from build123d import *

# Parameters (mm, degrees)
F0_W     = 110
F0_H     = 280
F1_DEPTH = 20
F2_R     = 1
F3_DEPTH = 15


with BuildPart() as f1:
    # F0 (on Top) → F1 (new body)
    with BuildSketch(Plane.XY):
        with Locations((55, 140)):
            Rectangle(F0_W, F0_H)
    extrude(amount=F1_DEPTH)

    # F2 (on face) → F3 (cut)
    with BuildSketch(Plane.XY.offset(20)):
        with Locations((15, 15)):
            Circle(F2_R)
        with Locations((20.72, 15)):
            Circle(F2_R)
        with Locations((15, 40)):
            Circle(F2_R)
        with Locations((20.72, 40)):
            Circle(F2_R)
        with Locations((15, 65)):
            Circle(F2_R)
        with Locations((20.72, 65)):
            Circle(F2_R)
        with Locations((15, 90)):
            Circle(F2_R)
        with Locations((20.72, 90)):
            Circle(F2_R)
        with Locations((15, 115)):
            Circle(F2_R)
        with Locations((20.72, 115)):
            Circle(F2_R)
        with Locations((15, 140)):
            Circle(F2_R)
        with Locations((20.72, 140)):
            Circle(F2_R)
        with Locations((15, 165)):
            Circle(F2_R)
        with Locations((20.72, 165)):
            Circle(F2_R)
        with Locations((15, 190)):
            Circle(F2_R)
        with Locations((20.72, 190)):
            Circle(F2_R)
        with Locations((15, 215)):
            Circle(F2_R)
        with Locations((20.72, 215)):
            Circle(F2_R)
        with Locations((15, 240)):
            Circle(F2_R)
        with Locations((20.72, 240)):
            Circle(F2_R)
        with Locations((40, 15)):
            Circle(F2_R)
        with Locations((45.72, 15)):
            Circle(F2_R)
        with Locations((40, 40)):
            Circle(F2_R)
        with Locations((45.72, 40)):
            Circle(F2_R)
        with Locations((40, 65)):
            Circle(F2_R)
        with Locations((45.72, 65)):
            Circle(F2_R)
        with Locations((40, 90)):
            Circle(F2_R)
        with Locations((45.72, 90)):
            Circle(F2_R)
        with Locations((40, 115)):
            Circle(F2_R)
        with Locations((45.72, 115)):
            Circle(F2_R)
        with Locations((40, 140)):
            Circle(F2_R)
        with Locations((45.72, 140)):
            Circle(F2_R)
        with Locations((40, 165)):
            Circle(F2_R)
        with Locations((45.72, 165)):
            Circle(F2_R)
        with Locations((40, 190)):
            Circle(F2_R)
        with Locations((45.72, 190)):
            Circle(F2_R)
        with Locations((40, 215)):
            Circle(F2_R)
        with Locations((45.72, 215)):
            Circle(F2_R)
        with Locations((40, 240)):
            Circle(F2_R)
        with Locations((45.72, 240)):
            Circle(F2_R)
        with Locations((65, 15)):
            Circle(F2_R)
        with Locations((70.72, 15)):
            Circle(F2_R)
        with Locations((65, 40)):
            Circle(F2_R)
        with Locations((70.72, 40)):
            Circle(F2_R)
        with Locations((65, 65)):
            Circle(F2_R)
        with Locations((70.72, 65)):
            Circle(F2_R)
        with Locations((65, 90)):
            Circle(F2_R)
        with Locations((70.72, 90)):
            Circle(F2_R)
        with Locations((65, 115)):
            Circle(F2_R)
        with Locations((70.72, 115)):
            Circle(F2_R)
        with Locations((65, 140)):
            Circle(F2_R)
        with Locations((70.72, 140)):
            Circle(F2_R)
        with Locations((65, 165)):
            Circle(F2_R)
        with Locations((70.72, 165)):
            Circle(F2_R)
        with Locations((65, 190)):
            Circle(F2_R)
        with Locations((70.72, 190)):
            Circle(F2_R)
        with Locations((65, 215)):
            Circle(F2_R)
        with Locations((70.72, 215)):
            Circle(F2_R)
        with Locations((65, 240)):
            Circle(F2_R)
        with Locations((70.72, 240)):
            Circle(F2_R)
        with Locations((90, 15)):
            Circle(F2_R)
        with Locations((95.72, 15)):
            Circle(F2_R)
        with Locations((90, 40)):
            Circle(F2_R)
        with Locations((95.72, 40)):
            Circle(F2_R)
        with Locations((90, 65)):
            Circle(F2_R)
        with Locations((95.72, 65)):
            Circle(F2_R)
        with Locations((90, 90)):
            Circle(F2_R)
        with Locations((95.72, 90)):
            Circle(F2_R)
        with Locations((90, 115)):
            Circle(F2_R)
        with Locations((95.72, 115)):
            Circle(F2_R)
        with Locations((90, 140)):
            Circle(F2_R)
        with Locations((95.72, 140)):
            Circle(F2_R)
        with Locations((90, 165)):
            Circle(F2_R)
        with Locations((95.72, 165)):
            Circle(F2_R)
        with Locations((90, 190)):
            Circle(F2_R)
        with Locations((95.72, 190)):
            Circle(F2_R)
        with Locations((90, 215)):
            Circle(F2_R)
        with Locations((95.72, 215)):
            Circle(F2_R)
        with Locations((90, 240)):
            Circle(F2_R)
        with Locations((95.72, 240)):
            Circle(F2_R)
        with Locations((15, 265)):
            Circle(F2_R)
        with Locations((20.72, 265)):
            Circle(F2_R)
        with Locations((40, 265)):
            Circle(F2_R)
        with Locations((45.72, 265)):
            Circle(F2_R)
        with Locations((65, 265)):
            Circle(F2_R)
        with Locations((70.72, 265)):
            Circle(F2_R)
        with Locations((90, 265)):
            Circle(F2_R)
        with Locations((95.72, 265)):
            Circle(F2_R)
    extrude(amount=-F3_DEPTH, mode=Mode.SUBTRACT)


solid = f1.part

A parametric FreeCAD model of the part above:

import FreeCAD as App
import Part
import Sketcher

doc = App.newDocument("Part")
params = doc.addObject("Spreadsheet::Sheet", "Params")
for row, (alias, value) in enumerate([
    ("sketch1_width", "110 mm"),
    ("sketch1_height", "280 mm"),
    ("pad1_length", "20 mm"),
    ("sketch2_diameter", "2 mm"),
    ("pocket1_length", "15 mm"),
], start=1):
    params.set(f"A{row}", alias)
    params.set(f"B{row}", "=" + value)
    params.setAlias(f"B{row}", alias)

body = doc.addObject("PartDesign::Body", "Body")

# Sketch on XY plane
sketch1 = body.newObject("Sketcher::SketchObject", "Sketch")
sketch1.AttachmentSupport = (doc.getObject("XY_Plane"), [""])
sketch1.MapMode = "FlatFace"
sketch1.addGeometry(Part.LineSegment(App.Vector(0, 280, 0), App.Vector(0, 0, 0)), False)
sketch1.addGeometry(Part.LineSegment(App.Vector(0, 0, 0), App.Vector(110, 0, 0)), False)
sketch1.addGeometry(Part.LineSegment(App.Vector(110, 0, 0), App.Vector(110, 280, 0)), False)
sketch1.addGeometry(Part.LineSegment(App.Vector(110, 280, 0), App.Vector(0, 280, 0)), False)
sketch1.addConstraint(Sketcher.Constraint("Coincident", 0, 2, 1, 1))
sketch1.addConstraint(Sketcher.Constraint("Coincident", 1, 2, 2, 1))
sketch1.addConstraint(Sketcher.Constraint("Coincident", 2, 2, 3, 1))
sketch1.addConstraint(Sketcher.Constraint("Coincident", 3, 2, 0, 1))
sketch1.addConstraint(Sketcher.Constraint("Vertical", 0))
sketch1.addConstraint(Sketcher.Constraint("Horizontal", 1))
sketch1.addConstraint(Sketcher.Constraint("Vertical", 2))
sketch1.addConstraint(Sketcher.Constraint("Horizontal", 3))
sketch1.addConstraint(Sketcher.Constraint("Coincident", 0, 2, -1, 1))
sketch1.addConstraint(Sketcher.Constraint("DistanceX", 1, 1, 1, 2, 110.0))
sketch1.addConstraint(Sketcher.Constraint("DistanceY", 0, 2, 0, 1, 280.0))
sketch1.setExpression("Constraints[9]", "Params.sketch1_width")
sketch1.setExpression("Constraints[10]", "Params.sketch1_height")
pad1 = body.newObject("PartDesign::Pad", "Pad")
pad1.Profile = sketch1
pad1.setExpression("Length", "Params.pad1_length")

# Sketch on XY plane
sketch2 = body.newObject("Sketcher::SketchObject", "Sketch001")
sketch2.AttachmentSupport = (doc.getObject("XY_Plane"), [""])
sketch2.MapMode = "FlatFace"
sketch2.AttachmentOffset = App.Placement(App.Vector(0, 0, 20), App.Rotation())
sketch2.addGeometry(Part.Circle(App.Vector(15, 15, 0), App.Vector(0, 0, 1), 1), False)
sketch2.addGeometry(Part.Circle(App.Vector(20.7, 15, 0), App.Vector(0, 0, 1), 1), False)
sketch2.addGeometry(Part.Circle(App.Vector(15, 40, 0), App.Vector(0, 0, 1), 1), False)
sketch2.addGeometry(Part.Circle(App.Vector(20.7, 40, 0), App.Vector(0, 0, 1), 1), False)
sketch2.addGeometry(Part.Circle(App.Vector(15, 65, 0), App.Vector(0, 0, 1), 1), False)
sketch2.addGeometry(Part.Circle(App.Vector(20.7, 65, 0), App.Vector(0, 0, 1), 1), False)
sketch2.addGeometry(Part.Circle(App.Vector(15, 90, 0), App.Vector(0, 0, 1), 1), False)
sketch2.addGeometry(Part.Circle(App.Vector(20.7, 90, 0), App.Vector(0, 0, 1), 1), False)
sketch2.addGeometry(Part.Circle(App.Vector(15, 115, 0), App.Vector(0, 0, 1), 1), False)
sketch2.addGeometry(Part.Circle(App.Vector(20.7, 115, 0), App.Vector(0, 0, 1), 1), False)
sketch2.addGeometry(Part.Circle(App.Vector(15, 140, 0), App.Vector(0, 0, 1), 1), False)
sketch2.addGeometry(Part.Circle(App.Vector(20.7, 140, 0), App.Vector(0, 0, 1), 1), False)
sketch2.addGeometry(Part.Circle(App.Vector(15, 165, 0), App.Vector(0, 0, 1), 1), False)
sketch2.addGeometry(Part.Circle(App.Vector(20.7, 165, 0), App.Vector(0, 0, 1), 1), False)
sketch2.addGeometry(Part.Circle(App.Vector(15, 190, 0), App.Vector(0, 0, 1), 1), False)
sketch2.addGeometry(Part.Circle(App.Vector(20.7, 190, 0), App.Vector(0, 0, 1), 1), False)
sketch2.addGeometry(Part.Circle(App.Vector(15, 215, 0), App.Vector(0, 0, 1), 1), False)
sketch2.addGeometry(Part.Circle(App.Vector(20.7, 215, 0), App.Vector(0, 0, 1), 1), False)
sketch2.addGeometry(Part.Circle(App.Vector(15, 240, 0), App.Vector(0, 0, 1), 1), False)
sketch2.addGeometry(Part.Circle(App.Vector(20.7, 240, 0), App.Vector(0, 0, 1), 1), False)
sketch2.addGeometry(Part.Circle(App.Vector(40, 15, 0), App.Vector(0, 0, 1), 1), False)
sketch2.addGeometry(Part.Circle(App.Vector(45.7, 15, 0), App.Vector(0, 0, 1), 1), False)
sketch2.addGeometry(Part.Circle(App.Vector(40, 40, 0), App.Vector(0, 0, 1), 1), False)
sketch2.addGeometry(Part.Circle(App.Vector(45.7, 40, 0), App.Vector(0, 0, 1), 1), False)
sketch2.addGeometry(Part.Circle(App.Vector(40, 65, 0), App.Vector(0, 0, 1), 1), False)
sketch2.addGeometry(Part.Circle(App.Vector(45.7, 65, 0), App.Vector(0, 0, 1), 1), False)
sketch2.addGeometry(Part.Circle(App.Vector(40, 90, 0), App.Vector(0, 0, 1), 1), False)
sketch2.addGeometry(Part.Circle(App.Vector(45.7, 90, 0), App.Vector(0, 0, 1), 1), False)
sketch2.addGeometry(Part.Circle(App.Vector(40, 115, 0), App.Vector(0, 0, 1), 1), False)
sketch2.addGeometry(Part.Circle(App.Vector(45.7, 115, 0), App.Vector(0, 0, 1), 1), False)
sketch2.addGeometry(Part.Circle(App.Vector(40, 140, 0), App.Vector(0, 0, 1), 1), False)
sketch2.addGeometry(Part.Circle(App.Vector(45.7, 140, 0), App.Vector(0, 0, 1), 1), False)
sketch2.addGeometry(Part.Circle(App.Vector(40, 165, 0), App.Vector(0, 0, 1), 1), False)
sketch2.addGeometry(Part.Circle(App.Vector(45.7, 165, 0), App.Vector(0, 0, 1), 1), False)
sketch2.addGeometry(Part.Circle(App.Vector(40, 190, 0), App.Vector(0, 0, 1), 1), False)
sketch2.addGeometry(Part.Circle(App.Vector(45.7, 190, 0), App.Vector(0, 0, 1), 1), False)
sketch2.addGeometry(Part.Circle(App.Vector(40, 215, 0), App.Vector(0, 0, 1), 1), False)
sketch2.addGeometry(Part.Circle(App.Vector(45.7, 215, 0), App.Vector(0, 0, 1), 1), False)
sketch2.addGeometry(Part.Circle(App.Vector(40, 240, 0), App.Vector(0, 0, 1), 1), False)
sketch2.addGeometry(Part.Circle(App.Vector(45.7, 240, 0), App.Vector(0, 0, 1), 1), False)
sketch2.addGeometry(Part.Circle(App.Vector(65, 15, 0), App.Vector(0, 0, 1), 1), False)
sketch2.addGeometry(Part.Circle(App.Vector(70.7, 15, 0), App.Vector(0, 0, 1), 1), False)
sketch2.addGeometry(Part.Circle(App.Vector(65, 40, 0), App.Vector(0, 0, 1), 1), False)
sketch2.addGeometry(Part.Circle(App.Vector(70.7, 40, 0), App.Vector(0, 0, 1), 1), False)
sketch2.addGeometry(Part.Circle(App.Vector(65, 65, 0), App.Vector(0, 0, 1), 1), False)
sketch2.addGeometry(Part.Circle(App.Vector(70.7, 65, 0), App.Vector(0, 0, 1), 1), False)
sketch2.addGeometry(Part.Circle(App.Vector(65, 90, 0), App.Vector(0, 0, 1), 1), False)
sketch2.addGeometry(Part.Circle(App.Vector(70.7, 90, 0), App.Vector(0, 0, 1), 1), False)
sketch2.addGeometry(Part.Circle(App.Vector(65, 115, 0), App.Vector(0, 0, 1), 1), False)
sketch2.addGeometry(Part.Circle(App.Vector(70.7, 115, 0), App.Vector(0, 0, 1), 1), False)
sketch2.addGeometry(Part.Circle(App.Vector(65, 140, 0), App.Vector(0, 0, 1), 1), False)
sketch2.addGeometry(Part.Circle(App.Vector(70.7, 140, 0), App.Vector(0, 0, 1), 1), False)
sketch2.addGeometry(Part.Circle(App.Vector(65, 165, 0), App.Vector(0, 0, 1), 1), False)
sketch2.addGeometry(Part.Circle(App.Vector(70.7, 165, 0), App.Vector(0, 0, 1), 1), False)
sketch2.addGeometry(Part.Circle(App.Vector(65, 190, 0), App.Vector(0, 0, 1), 1), False)
sketch2.addGeometry(Part.Circle(App.Vector(70.7, 190, 0), App.Vector(0, 0, 1), 1), False)
sketch2.addGeometry(Part.Circle(App.Vector(65, 215, 0), App.Vector(0, 0, 1), 1), False)
sketch2.addGeometry(Part.Circle(App.Vector(70.7, 215, 0), App.Vector(0, 0, 1), 1), False)
sketch2.addGeometry(Part.Circle(App.Vector(65, 240, 0), App.Vector(0, 0, 1), 1), False)
sketch2.addGeometry(Part.Circle(App.Vector(70.7, 240, 0), App.Vector(0, 0, 1), 1), False)
sketch2.addGeometry(Part.Circle(App.Vector(90, 15, 0), App.Vector(0, 0, 1), 1), False)
sketch2.addGeometry(Part.Circle(App.Vector(95.7, 15, 0), App.Vector(0, 0, 1), 1), False)
sketch2.addGeometry(Part.Circle(App.Vector(90, 40, 0), App.Vector(0, 0, 1), 1), False)
sketch2.addGeometry(Part.Circle(App.Vector(95.7, 40, 0), App.Vector(0, 0, 1), 1), False)
sketch2.addGeometry(Part.Circle(App.Vector(90, 65, 0), App.Vector(0, 0, 1), 1), False)
sketch2.addGeometry(Part.Circle(App.Vector(95.7, 65, 0), App.Vector(0, 0, 1), 1), False)
sketch2.addGeometry(Part.Circle(App.Vector(90, 90, 0), App.Vector(0, 0, 1), 1), False)
sketch2.addGeometry(Part.Circle(App.Vector(95.7, 90, 0), App.Vector(0, 0, 1), 1), False)
sketch2.addGeometry(Part.Circle(App.Vector(90, 115, 0), App.Vector(0, 0, 1), 1), False)
sketch2.addGeometry(Part.Circle(App.Vector(95.7, 115, 0), App.Vector(0, 0, 1), 1), False)
sketch2.addGeometry(Part.Circle(App.Vector(90, 140, 0), App.Vector(0, 0, 1), 1), False)
sketch2.addGeometry(Part.Circle(App.Vector(95.7, 140, 0), App.Vector(0, 0, 1), 1), False)
sketch2.addGeometry(Part.Circle(App.Vector(90, 165, 0), App.Vector(0, 0, 1), 1), False)
sketch2.addGeometry(Part.Circle(App.Vector(95.7, 165, 0), App.Vector(0, 0, 1), 1), False)
sketch2.addGeometry(Part.Circle(App.Vector(90, 190, 0), App.Vector(0, 0, 1), 1), False)
sketch2.addGeometry(Part.Circle(App.Vector(95.7, 190, 0), App.Vector(0, 0, 1), 1), False)
sketch2.addGeometry(Part.Circle(App.Vector(90, 215, 0), App.Vector(0, 0, 1), 1), False)
sketch2.addGeometry(Part.Circle(App.Vector(95.7, 215, 0), App.Vector(0, 0, 1), 1), False)
sketch2.addGeometry(Part.Circle(App.Vector(90, 240, 0), App.Vector(0, 0, 1), 1), False)
sketch2.addGeometry(Part.Circle(App.Vector(95.7, 240, 0), App.Vector(0, 0, 1), 1), False)
sketch2.addGeometry(Part.Circle(App.Vector(15, 265, 0), App.Vector(0, 0, 1), 1), False)
sketch2.addGeometry(Part.Circle(App.Vector(20.7, 265, 0), App.Vector(0, 0, 1), 1), False)
sketch2.addGeometry(Part.Circle(App.Vector(40, 265, 0), App.Vector(0, 0, 1), 1), False)
sketch2.addGeometry(Part.Circle(App.Vector(45.7, 265, 0), App.Vector(0, 0, 1), 1), False)
sketch2.addGeometry(Part.Circle(App.Vector(65, 265, 0), App.Vector(0, 0, 1), 1), False)
sketch2.addGeometry(Part.Circle(App.Vector(70.7, 265, 0), App.Vector(0, 0, 1), 1), False)
sketch2.addGeometry(Part.Circle(App.Vector(90, 265, 0), App.Vector(0, 0, 1), 1), False)
sketch2.addGeometry(Part.Circle(App.Vector(95.7, 265, 0), App.Vector(0, 0, 1), 1), False)
sketch2.addConstraint(Sketcher.Constraint("Equal", 0, 1))
sketch2.addConstraint(Sketcher.Constraint("Equal", 1, 2))
sketch2.addConstraint(Sketcher.Constraint("Equal", 2, 3))
sketch2.addConstraint(Sketcher.Constraint("Equal", 3, 4))
sketch2.addConstraint(Sketcher.Constraint("Equal", 4, 5))
sketch2.addConstraint(Sketcher.Constraint("Equal", 5, 6))
sketch2.addConstraint(Sketcher.Constraint("Equal", 6, 7))
sketch2.addConstraint(Sketcher.Constraint("Equal", 7, 8))
sketch2.addConstraint(Sketcher.Constraint("Equal", 8, 9))
sketch2.addConstraint(Sketcher.Constraint("Equal", 9, 10))
sketch2.addConstraint(Sketcher.Constraint("Equal", 10, 11))
sketch2.addConstraint(Sketcher.Constraint("Equal", 11, 12))
sketch2.addConstraint(Sketcher.Constraint("Equal", 12, 13))
sketch2.addConstraint(Sketcher.Constraint("Equal", 13, 14))
sketch2.addConstraint(Sketcher.Constraint("Equal", 14, 15))
sketch2.addConstraint(Sketcher.Constraint("Equal", 15, 16))
sketch2.addConstraint(Sketcher.Constraint("Equal", 16, 17))
sketch2.addConstraint(Sketcher.Constraint("Equal", 17, 18))
sketch2.addConstraint(Sketcher.Constraint("Equal", 18, 19))
sketch2.addConstraint(Sketcher.Constraint("Equal", 19, 20))
sketch2.addConstraint(Sketcher.Constraint("Equal", 20, 21))
sketch2.addConstraint(Sketcher.Constraint("Equal", 21, 22))
sketch2.addConstraint(Sketcher.Constraint("Equal", 22, 23))
sketch2.addConstraint(Sketcher.Constraint("Equal", 23, 24))
sketch2.addConstraint(Sketcher.Constraint("Equal", 24, 25))
sketch2.addConstraint(Sketcher.Constraint("Equal", 25, 26))
sketch2.addConstraint(Sketcher.Constraint("Equal", 26, 27))
sketch2.addConstraint(Sketcher.Constraint("Equal", 27, 28))
sketch2.addConstraint(Sketcher.Constraint("Equal", 28, 29))
sketch2.addConstraint(Sketcher.Constraint("Equal", 29, 30))
sketch2.addConstraint(Sketcher.Constraint("Equal", 30, 31))
sketch2.addConstraint(Sketcher.Constraint("Equal", 31, 32))
sketch2.addConstraint(Sketcher.Constraint("Equal", 32, 33))
sketch2.addConstraint(Sketcher.Constraint("Equal", 33, 34))
sketch2.addConstraint(Sketcher.Constraint("Equal", 34, 35))
sketch2.addConstraint(Sketcher.Constraint("Equal", 35, 36))
sketch2.addConstraint(Sketcher.Constraint("Equal", 36, 37))
sketch2.addConstraint(Sketcher.Constraint("Equal", 37, 38))
sketch2.addConstraint(Sketcher.Constraint("Equal", 38, 39))
sketch2.addConstraint(Sketcher.Constraint("Equal", 39, 40))
sketch2.addConstraint(Sketcher.Constraint("Equal", 40, 41))
sketch2.addConstraint(Sketcher.Constraint("Equal", 41, 42))
sketch2.addConstraint(Sketcher.Constraint("Equal", 42, 43))
sketch2.addConstraint(Sketcher.Constraint("Equal", 43, 44))
sketch2.addConstraint(Sketcher.Constraint("Equal", 44, 45))
sketch2.addConstraint(Sketcher.Constraint("Equal", 45, 46))
sketch2.addConstraint(Sketcher.Constraint("Equal", 46, 47))
sketch2.addConstraint(Sketcher.Constraint("Equal", 47, 48))
sketch2.addConstraint(Sketcher.Constraint("Equal", 48, 49))
sketch2.addConstraint(Sketcher.Constraint("Equal", 49, 50))
sketch2.addConstraint(Sketcher.Constraint("Equal", 50, 51))
sketch2.addConstraint(Sketcher.Constraint("Equal", 51, 52))
sketch2.addConstraint(Sketcher.Constraint("Equal", 52, 53))
sketch2.addConstraint(Sketcher.Constraint("Equal", 53, 54))
sketch2.addConstraint(Sketcher.Constraint("Equal", 54, 55))
sketch2.addConstraint(Sketcher.Constraint("Equal", 55, 56))
sketch2.addConstraint(Sketcher.Constraint("Equal", 56, 57))
sketch2.addConstraint(Sketcher.Constraint("Equal", 57, 58))
sketch2.addConstraint(Sketcher.Constraint("Equal", 58, 59))
sketch2.addConstraint(Sketcher.Constraint("Equal", 59, 60))
sketch2.addConstraint(Sketcher.Constraint("Equal", 60, 61))
sketch2.addConstraint(Sketcher.Constraint("Equal", 61, 62))
sketch2.addConstraint(Sketcher.Constraint("Equal", 62, 63))
sketch2.addConstraint(Sketcher.Constraint("Equal", 63, 64))
sketch2.addConstraint(Sketcher.Constraint("Equal", 64, 65))
sketch2.addConstraint(Sketcher.Constraint("Equal", 65, 66))
sketch2.addConstraint(Sketcher.Constraint("Equal", 66, 67))
sketch2.addConstraint(Sketcher.Constraint("Equal", 67, 68))
sketch2.addConstraint(Sketcher.Constraint("Equal", 68, 69))
sketch2.addConstraint(Sketcher.Constraint("Equal", 69, 70))
sketch2.addConstraint(Sketcher.Constraint("Equal", 70, 71))
sketch2.addConstraint(Sketcher.Constraint("Equal", 71, 72))
sketch2.addConstraint(Sketcher.Constraint("Equal", 72, 73))
sketch2.addConstraint(Sketcher.Constraint("Equal", 73, 74))
sketch2.addConstraint(Sketcher.Constraint("Equal", 74, 75))
sketch2.addConstraint(Sketcher.Constraint("Equal", 75, 76))
sketch2.addConstraint(Sketcher.Constraint("Equal", 76, 77))
sketch2.addConstraint(Sketcher.Constraint("Equal", 77, 78))
sketch2.addConstraint(Sketcher.Constraint("Equal", 78, 79))
sketch2.addConstraint(Sketcher.Constraint("Equal", 79, 80))
sketch2.addConstraint(Sketcher.Constraint("Equal", 80, 81))
sketch2.addConstraint(Sketcher.Constraint("Equal", 81, 82))
sketch2.addConstraint(Sketcher.Constraint("Equal", 82, 83))
sketch2.addConstraint(Sketcher.Constraint("Equal", 83, 84))
sketch2.addConstraint(Sketcher.Constraint("Equal", 84, 85))
sketch2.addConstraint(Sketcher.Constraint("Equal", 85, 86))
sketch2.addConstraint(Sketcher.Constraint("Equal", 86, 87))
sketch2.addConstraint(Sketcher.Constraint("Horizontal", 0, 3, 1, 3))
sketch2.addConstraint(Sketcher.Constraint("Horizontal", 2, 3, 3, 3))
sketch2.addConstraint(Sketcher.Constraint("Horizontal", 4, 3, 5, 3))
sketch2.addConstraint(Sketcher.Constraint("Horizontal", 6, 3, 7, 3))
sketch2.addConstraint(Sketcher.Constraint("Horizontal", 8, 3, 9, 3))
sketch2.addConstraint(Sketcher.Constraint("Horizontal", 10, 3, 11, 3))
sketch2.addConstraint(Sketcher.Constraint("Horizontal", 12, 3, 13, 3))
sketch2.addConstraint(Sketcher.Constraint("Horizontal", 14, 3, 15, 3))
sketch2.addConstraint(Sketcher.Constraint("Horizontal", 16, 3, 17, 3))
sketch2.addConstraint(Sketcher.Constraint("Horizontal", 18, 3, 19, 3))
sketch2.addConstraint(Sketcher.Constraint("Horizontal", 1, 3, 20, 3))
sketch2.addConstraint(Sketcher.Constraint("Horizontal", 20, 3, 21, 3))
sketch2.addConstraint(Sketcher.Constraint("Horizontal", 3, 3, 22, 3))
sketch2.addConstraint(Sketcher.Constraint("Horizontal", 22, 3, 23, 3))
sketch2.addConstraint(Sketcher.Constraint("Horizontal", 5, 3, 24, 3))
sketch2.addConstraint(Sketcher.Constraint("Horizontal", 24, 3, 25, 3))
sketch2.addConstraint(Sketcher.Constraint("Horizontal", 7, 3, 26, 3))
sketch2.addConstraint(Sketcher.Constraint("Horizontal", 26, 3, 27, 3))
sketch2.addConstraint(Sketcher.Constraint("Horizontal", 9, 3, 28, 3))
sketch2.addConstraint(Sketcher.Constraint("Horizontal", 28, 3, 29, 3))
sketch2.addConstraint(Sketcher.Constraint("Horizontal", 11, 3, 30, 3))
sketch2.addConstraint(Sketcher.Constraint("Horizontal", 30, 3, 31, 3))
sketch2.addConstraint(Sketcher.Constraint("Horizontal", 13, 3, 32, 3))
sketch2.addConstraint(Sketcher.Constraint("Horizontal", 32, 3, 33, 3))
sketch2.addConstraint(Sketcher.Constraint("Horizontal", 15, 3, 34, 3))
sketch2.addConstraint(Sketcher.Constraint("Horizontal", 34, 3, 35, 3))
sketch2.addConstraint(Sketcher.Constraint("Horizontal", 17, 3, 36, 3))
sketch2.addConstraint(Sketcher.Constraint("Horizontal", 36, 3, 37, 3))
sketch2.addConstraint(Sketcher.Constraint("Horizontal", 19, 3, 38, 3))
sketch2.addConstraint(Sketcher.Constraint("Horizontal", 38, 3, 39, 3))
sketch2.addConstraint(Sketcher.Constraint("Horizontal", 21, 3, 40, 3))
sketch2.addConstraint(Sketcher.Constraint("Horizontal", 40, 3, 41, 3))
sketch2.addConstraint(Sketcher.Constraint("Horizontal", 23, 3, 42, 3))
sketch2.addConstraint(Sketcher.Constraint("Horizontal", 42, 3, 43, 3))
sketch2.addConstraint(Sketcher.Constraint("Horizontal", 25, 3, 44, 3))
sketch2.addConstraint(Sketcher.Constraint("Horizontal", 44, 3, 45, 3))
sketch2.addConstraint(Sketcher.Constraint("Horizontal", 27, 3, 46, 3))
sketch2.addConstraint(Sketcher.Constraint("Horizontal", 46, 3, 47, 3))
sketch2.addConstraint(Sketcher.Constraint("Horizontal", 29, 3, 48, 3))
sketch2.addConstraint(Sketcher.Constraint("Horizontal", 48, 3, 49, 3))
sketch2.addConstraint(Sketcher.Constraint("Horizontal", 31, 3, 50, 3))
sketch2.addConstraint(Sketcher.Constraint("Horizontal", 50, 3, 51, 3))
sketch2.addConstraint(Sketcher.Constraint("Horizontal", 33, 3, 52, 3))
sketch2.addConstraint(Sketcher.Constraint("Horizontal", 52, 3, 53, 3))
sketch2.addConstraint(Sketcher.Constraint("Horizontal", 35, 3, 54, 3))
sketch2.addConstraint(Sketcher.Constraint("Horizontal", 54, 3, 55, 3))
sketch2.addConstraint(Sketcher.Constraint("Horizontal", 37, 3, 56, 3))
sketch2.addConstraint(Sketcher.Constraint("Horizontal", 56, 3, 57, 3))
sketch2.addConstraint(Sketcher.Constraint("Horizontal", 39, 3, 58, 3))
sketch2.addConstraint(Sketcher.Constraint("Horizontal", 58, 3, 59, 3))
sketch2.addConstraint(Sketcher.Constraint("Horizontal", 41, 3, 60, 3))
sketch2.addConstraint(Sketcher.Constraint("Horizontal", 60, 3, 61, 3))
sketch2.addConstraint(Sketcher.Constraint("Horizontal", 43, 3, 62, 3))
sketch2.addConstraint(Sketcher.Constraint("Horizontal", 62, 3, 63, 3))
sketch2.addConstraint(Sketcher.Constraint("Horizontal", 45, 3, 64, 3))
sketch2.addConstraint(Sketcher.Constraint("Horizontal", 64, 3, 65, 3))
sketch2.addConstraint(Sketcher.Constraint("Horizontal", 47, 3, 66, 3))
sketch2.addConstraint(Sketcher.Constraint("Horizontal", 66, 3, 67, 3))
sketch2.addConstraint(Sketcher.Constraint("Horizontal", 49, 3, 68, 3))
sketch2.addConstraint(Sketcher.Constraint("Horizontal", 68, 3, 69, 3))
sketch2.addConstraint(Sketcher.Constraint("Horizontal", 51, 3, 70, 3))
sketch2.addConstraint(Sketcher.Constraint("Horizontal", 70, 3, 71, 3))
sketch2.addConstraint(Sketcher.Constraint("Horizontal", 53, 3, 72, 3))
sketch2.addConstraint(Sketcher.Constraint("Horizontal", 72, 3, 73, 3))
sketch2.addConstraint(Sketcher.Constraint("Horizontal", 55, 3, 74, 3))
sketch2.addConstraint(Sketcher.Constraint("Horizontal", 74, 3, 75, 3))
sketch2.addConstraint(Sketcher.Constraint("Horizontal", 57, 3, 76, 3))
sketch2.addConstraint(Sketcher.Constraint("Horizontal", 76, 3, 77, 3))
sketch2.addConstraint(Sketcher.Constraint("Horizontal", 59, 3, 78, 3))
sketch2.addConstraint(Sketcher.Constraint("Horizontal", 78, 3, 79, 3))
sketch2.addConstraint(Sketcher.Constraint("Horizontal", 80, 3, 81, 3))
sketch2.addConstraint(Sketcher.Constraint("Horizontal", 81, 3, 82, 3))
sketch2.addConstraint(Sketcher.Constraint("Horizontal", 82, 3, 83, 3))
sketch2.addConstraint(Sketcher.Constraint("Horizontal", 83, 3, 84, 3))
sketch2.addConstraint(Sketcher.Constraint("Horizontal", 84, 3, 85, 3))
sketch2.addConstraint(Sketcher.Constraint("Horizontal", 85, 3, 86, 3))
sketch2.addConstraint(Sketcher.Constraint("Horizontal", 86, 3, 87, 3))
sketch2.addConstraint(Sketcher.Constraint("Vertical", 0, 3, 2, 3))
sketch2.addConstraint(Sketcher.Constraint("Vertical", 1, 3, 3, 3))
sketch2.addConstraint(Sketcher.Constraint("Vertical", 2, 3, 4, 3))
sketch2.addConstraint(Sketcher.Constraint("Vertical", 3, 3, 5, 3))
sketch2.addConstraint(Sketcher.Constraint("Vertical", 4, 3, 6, 3))
sketch2.addConstraint(Sketcher.Constraint("Vertical", 5, 3, 7, 3))
sketch2.addConstraint(Sketcher.Constraint("Vertical", 6, 3, 8, 3))
sketch2.addConstraint(Sketcher.Constraint("Vertical", 7, 3, 9, 3))
sketch2.addConstraint(Sketcher.Constraint("Vertical", 8, 3, 10, 3))
sketch2.addConstraint(Sketcher.Constraint("Vertical", 9, 3, 11, 3))
sketch2.addConstraint(Sketcher.Constraint("Vertical", 10, 3, 12, 3))
sketch2.addConstraint(Sketcher.Constraint("Vertical", 11, 3, 13, 3))
sketch2.addConstraint(Sketcher.Constraint("Vertical", 12, 3, 14, 3))
sketch2.addConstraint(Sketcher.Constraint("Vertical", 13, 3, 15, 3))
sketch2.addConstraint(Sketcher.Constraint("Vertical", 14, 3, 16, 3))
sketch2.addConstraint(Sketcher.Constraint("Vertical", 15, 3, 17, 3))
sketch2.addConstraint(Sketcher.Constraint("Vertical", 16, 3, 18, 3))
sketch2.addConstraint(Sketcher.Constraint("Vertical", 17, 3, 19, 3))
sketch2.addConstraint(Sketcher.Constraint("Vertical", 20, 3, 22, 3))
sketch2.addConstraint(Sketcher.Constraint("Vertical", 21, 3, 23, 3))
sketch2.addConstraint(Sketcher.Constraint("Vertical", 22, 3, 24, 3))
sketch2.addConstraint(Sketcher.Constraint("Vertical", 23, 3, 25, 3))
sketch2.addConstraint(Sketcher.Constraint("Vertical", 24, 3, 26, 3))
sketch2.addConstraint(Sketcher.Constraint("Vertical", 25, 3, 27, 3))
sketch2.addConstraint(Sketcher.Constraint("Vertical", 26, 3, 28, 3))
sketch2.addConstraint(Sketcher.Constraint("Vertical", 27, 3, 29, 3))
sketch2.addConstraint(Sketcher.Constraint("Vertical", 28, 3, 30, 3))
sketch2.addConstraint(Sketcher.Constraint("Vertical", 29, 3, 31, 3))
sketch2.addConstraint(Sketcher.Constraint("Vertical", 30, 3, 32, 3))
sketch2.addConstraint(Sketcher.Constraint("Vertical", 31, 3, 33, 3))
sketch2.addConstraint(Sketcher.Constraint("Vertical", 32, 3, 34, 3))
sketch2.addConstraint(Sketcher.Constraint("Vertical", 33, 3, 35, 3))
sketch2.addConstraint(Sketcher.Constraint("Vertical", 34, 3, 36, 3))
sketch2.addConstraint(Sketcher.Constraint("Vertical", 35, 3, 37, 3))
sketch2.addConstraint(Sketcher.Constraint("Vertical", 36, 3, 38, 3))
sketch2.addConstraint(Sketcher.Constraint("Vertical", 37, 3, 39, 3))
sketch2.addConstraint(Sketcher.Constraint("Vertical", 40, 3, 42, 3))
sketch2.addConstraint(Sketcher.Constraint("Vertical", 41, 3, 43, 3))
sketch2.addConstraint(Sketcher.Constraint("Vertical", 42, 3, 44, 3))
sketch2.addConstraint(Sketcher.Constraint("Vertical", 43, 3, 45, 3))
sketch2.addConstraint(Sketcher.Constraint("Vertical", 44, 3, 46, 3))
sketch2.addConstraint(Sketcher.Constraint("Vertical", 45, 3, 47, 3))
sketch2.addConstraint(Sketcher.Constraint("Vertical", 46, 3, 48, 3))
sketch2.addConstraint(Sketcher.Constraint("Vertical", 47, 3, 49, 3))
sketch2.addConstraint(Sketcher.Constraint("Vertical", 48, 3, 50, 3))
sketch2.addConstraint(Sketcher.Constraint("Vertical", 49, 3, 51, 3))
sketch2.addConstraint(Sketcher.Constraint("Vertical", 50, 3, 52, 3))
sketch2.addConstraint(Sketcher.Constraint("Vertical", 51, 3, 53, 3))
sketch2.addConstraint(Sketcher.Constraint("Vertical", 52, 3, 54, 3))
sketch2.addConstraint(Sketcher.Constraint("Vertical", 53, 3, 55, 3))
sketch2.addConstraint(Sketcher.Constraint("Vertical", 54, 3, 56, 3))
sketch2.addConstraint(Sketcher.Constraint("Vertical", 55, 3, 57, 3))
sketch2.addConstraint(Sketcher.Constraint("Vertical", 56, 3, 58, 3))
sketch2.addConstraint(Sketcher.Constraint("Vertical", 57, 3, 59, 3))
sketch2.addConstraint(Sketcher.Constraint("Vertical", 60, 3, 62, 3))
sketch2.addConstraint(Sketcher.Constraint("Vertical", 61, 3, 63, 3))
sketch2.addConstraint(Sketcher.Constraint("Vertical", 62, 3, 64, 3))
sketch2.addConstraint(Sketcher.Constraint("Vertical", 63, 3, 65, 3))
sketch2.addConstraint(Sketcher.Constraint("Vertical", 64, 3, 66, 3))
sketch2.addConstraint(Sketcher.Constraint("Vertical", 65, 3, 67, 3))
sketch2.addConstraint(Sketcher.Constraint("Vertical", 66, 3, 68, 3))
sketch2.addConstraint(Sketcher.Constraint("Vertical", 67, 3, 69, 3))
sketch2.addConstraint(Sketcher.Constraint("Vertical", 68, 3, 70, 3))
sketch2.addConstraint(Sketcher.Constraint("Vertical", 69, 3, 71, 3))
sketch2.addConstraint(Sketcher.Constraint("Vertical", 70, 3, 72, 3))
sketch2.addConstraint(Sketcher.Constraint("Vertical", 71, 3, 73, 3))
sketch2.addConstraint(Sketcher.Constraint("Vertical", 72, 3, 74, 3))
sketch2.addConstraint(Sketcher.Constraint("Vertical", 73, 3, 75, 3))
sketch2.addConstraint(Sketcher.Constraint("Vertical", 74, 3, 76, 3))
sketch2.addConstraint(Sketcher.Constraint("Vertical", 75, 3, 77, 3))
sketch2.addConstraint(Sketcher.Constraint("Vertical", 76, 3, 78, 3))
sketch2.addConstraint(Sketcher.Constraint("Vertical", 77, 3, 79, 3))
sketch2.addConstraint(Sketcher.Constraint("Vertical", 18, 3, 80, 3))
sketch2.addConstraint(Sketcher.Constraint("Vertical", 19, 3, 81, 3))
sketch2.addConstraint(Sketcher.Constraint("Vertical", 38, 3, 82, 3))
sketch2.addConstraint(Sketcher.Constraint("Vertical", 39, 3, 83, 3))
sketch2.addConstraint(Sketcher.Constraint("Vertical", 58, 3, 84, 3))
sketch2.addConstraint(Sketcher.Constraint("Vertical", 59, 3, 85, 3))
sketch2.addConstraint(Sketcher.Constraint("Vertical", 78, 3, 86, 3))
sketch2.addConstraint(Sketcher.Constraint("Vertical", 79, 3, 87, 3))
sketch2.addConstraint(Sketcher.Constraint("Diameter", 0, 2.0))
sketch2.addConstraint(Sketcher.Constraint("DistanceX", -1, 1, 0, 3, 15.0))
sketch2.addConstraint(Sketcher.Constraint("DistanceY", -1, 1, 0, 3, 15.0))
sketch2.addConstraint(Sketcher.Constraint("DistanceY", -1, 1, 2, 3, 40.0))
sketch2.addConstraint(Sketcher.Constraint("DistanceY", -1, 1, 4, 3, 65.0))
sketch2.addConstraint(Sketcher.Constraint("DistanceY", -1, 1, 6, 3, 90.0))
sketch2.addConstraint(Sketcher.Constraint("DistanceY", -1, 1, 8, 3, 115.0))
sketch2.addConstraint(Sketcher.Constraint("DistanceY", -1, 1, 10, 3, 140.0))
sketch2.addConstraint(Sketcher.Constraint("DistanceY", -1, 1, 12, 3, 165.0))
sketch2.addConstraint(Sketcher.Constraint("DistanceY", -1, 1, 14, 3, 190.0))
sketch2.addConstraint(Sketcher.Constraint("DistanceY", -1, 1, 16, 3, 215.0))
sketch2.addConstraint(Sketcher.Constraint("DistanceY", -1, 1, 18, 3, 240.0))
sketch2.addConstraint(Sketcher.Constraint("DistanceX", -1, 1, 20, 3, 40.0))
sketch2.addConstraint(Sketcher.Constraint("DistanceX", -1, 1, 40, 3, 65.0))
sketch2.addConstraint(Sketcher.Constraint("DistanceX", -1, 1, 60, 3, 90.0))
sketch2.addConstraint(Sketcher.Constraint("DistanceY", -1, 1, 80, 3, 265.0))
sketch2.addConstraint(Sketcher.Constraint("DistanceX", -1, 1, 1, 3, 20.72))
sketch2.addConstraint(Sketcher.Constraint("DistanceX", -1, 1, 21, 3, 45.72))
sketch2.addConstraint(Sketcher.Constraint("DistanceX", -1, 1, 41, 3, 70.72))
sketch2.addConstraint(Sketcher.Constraint("DistanceX", -1, 1, 61, 3, 95.72))
sketch2.setExpression("Constraints[244]", "Params.sketch2_diameter")
pocket1 = body.newObject("PartDesign::Pocket", "Pocket")
pocket1.Profile = sketch2
pocket1.setExpression("Length", "Params.pocket1_length")

doc.recompute()
